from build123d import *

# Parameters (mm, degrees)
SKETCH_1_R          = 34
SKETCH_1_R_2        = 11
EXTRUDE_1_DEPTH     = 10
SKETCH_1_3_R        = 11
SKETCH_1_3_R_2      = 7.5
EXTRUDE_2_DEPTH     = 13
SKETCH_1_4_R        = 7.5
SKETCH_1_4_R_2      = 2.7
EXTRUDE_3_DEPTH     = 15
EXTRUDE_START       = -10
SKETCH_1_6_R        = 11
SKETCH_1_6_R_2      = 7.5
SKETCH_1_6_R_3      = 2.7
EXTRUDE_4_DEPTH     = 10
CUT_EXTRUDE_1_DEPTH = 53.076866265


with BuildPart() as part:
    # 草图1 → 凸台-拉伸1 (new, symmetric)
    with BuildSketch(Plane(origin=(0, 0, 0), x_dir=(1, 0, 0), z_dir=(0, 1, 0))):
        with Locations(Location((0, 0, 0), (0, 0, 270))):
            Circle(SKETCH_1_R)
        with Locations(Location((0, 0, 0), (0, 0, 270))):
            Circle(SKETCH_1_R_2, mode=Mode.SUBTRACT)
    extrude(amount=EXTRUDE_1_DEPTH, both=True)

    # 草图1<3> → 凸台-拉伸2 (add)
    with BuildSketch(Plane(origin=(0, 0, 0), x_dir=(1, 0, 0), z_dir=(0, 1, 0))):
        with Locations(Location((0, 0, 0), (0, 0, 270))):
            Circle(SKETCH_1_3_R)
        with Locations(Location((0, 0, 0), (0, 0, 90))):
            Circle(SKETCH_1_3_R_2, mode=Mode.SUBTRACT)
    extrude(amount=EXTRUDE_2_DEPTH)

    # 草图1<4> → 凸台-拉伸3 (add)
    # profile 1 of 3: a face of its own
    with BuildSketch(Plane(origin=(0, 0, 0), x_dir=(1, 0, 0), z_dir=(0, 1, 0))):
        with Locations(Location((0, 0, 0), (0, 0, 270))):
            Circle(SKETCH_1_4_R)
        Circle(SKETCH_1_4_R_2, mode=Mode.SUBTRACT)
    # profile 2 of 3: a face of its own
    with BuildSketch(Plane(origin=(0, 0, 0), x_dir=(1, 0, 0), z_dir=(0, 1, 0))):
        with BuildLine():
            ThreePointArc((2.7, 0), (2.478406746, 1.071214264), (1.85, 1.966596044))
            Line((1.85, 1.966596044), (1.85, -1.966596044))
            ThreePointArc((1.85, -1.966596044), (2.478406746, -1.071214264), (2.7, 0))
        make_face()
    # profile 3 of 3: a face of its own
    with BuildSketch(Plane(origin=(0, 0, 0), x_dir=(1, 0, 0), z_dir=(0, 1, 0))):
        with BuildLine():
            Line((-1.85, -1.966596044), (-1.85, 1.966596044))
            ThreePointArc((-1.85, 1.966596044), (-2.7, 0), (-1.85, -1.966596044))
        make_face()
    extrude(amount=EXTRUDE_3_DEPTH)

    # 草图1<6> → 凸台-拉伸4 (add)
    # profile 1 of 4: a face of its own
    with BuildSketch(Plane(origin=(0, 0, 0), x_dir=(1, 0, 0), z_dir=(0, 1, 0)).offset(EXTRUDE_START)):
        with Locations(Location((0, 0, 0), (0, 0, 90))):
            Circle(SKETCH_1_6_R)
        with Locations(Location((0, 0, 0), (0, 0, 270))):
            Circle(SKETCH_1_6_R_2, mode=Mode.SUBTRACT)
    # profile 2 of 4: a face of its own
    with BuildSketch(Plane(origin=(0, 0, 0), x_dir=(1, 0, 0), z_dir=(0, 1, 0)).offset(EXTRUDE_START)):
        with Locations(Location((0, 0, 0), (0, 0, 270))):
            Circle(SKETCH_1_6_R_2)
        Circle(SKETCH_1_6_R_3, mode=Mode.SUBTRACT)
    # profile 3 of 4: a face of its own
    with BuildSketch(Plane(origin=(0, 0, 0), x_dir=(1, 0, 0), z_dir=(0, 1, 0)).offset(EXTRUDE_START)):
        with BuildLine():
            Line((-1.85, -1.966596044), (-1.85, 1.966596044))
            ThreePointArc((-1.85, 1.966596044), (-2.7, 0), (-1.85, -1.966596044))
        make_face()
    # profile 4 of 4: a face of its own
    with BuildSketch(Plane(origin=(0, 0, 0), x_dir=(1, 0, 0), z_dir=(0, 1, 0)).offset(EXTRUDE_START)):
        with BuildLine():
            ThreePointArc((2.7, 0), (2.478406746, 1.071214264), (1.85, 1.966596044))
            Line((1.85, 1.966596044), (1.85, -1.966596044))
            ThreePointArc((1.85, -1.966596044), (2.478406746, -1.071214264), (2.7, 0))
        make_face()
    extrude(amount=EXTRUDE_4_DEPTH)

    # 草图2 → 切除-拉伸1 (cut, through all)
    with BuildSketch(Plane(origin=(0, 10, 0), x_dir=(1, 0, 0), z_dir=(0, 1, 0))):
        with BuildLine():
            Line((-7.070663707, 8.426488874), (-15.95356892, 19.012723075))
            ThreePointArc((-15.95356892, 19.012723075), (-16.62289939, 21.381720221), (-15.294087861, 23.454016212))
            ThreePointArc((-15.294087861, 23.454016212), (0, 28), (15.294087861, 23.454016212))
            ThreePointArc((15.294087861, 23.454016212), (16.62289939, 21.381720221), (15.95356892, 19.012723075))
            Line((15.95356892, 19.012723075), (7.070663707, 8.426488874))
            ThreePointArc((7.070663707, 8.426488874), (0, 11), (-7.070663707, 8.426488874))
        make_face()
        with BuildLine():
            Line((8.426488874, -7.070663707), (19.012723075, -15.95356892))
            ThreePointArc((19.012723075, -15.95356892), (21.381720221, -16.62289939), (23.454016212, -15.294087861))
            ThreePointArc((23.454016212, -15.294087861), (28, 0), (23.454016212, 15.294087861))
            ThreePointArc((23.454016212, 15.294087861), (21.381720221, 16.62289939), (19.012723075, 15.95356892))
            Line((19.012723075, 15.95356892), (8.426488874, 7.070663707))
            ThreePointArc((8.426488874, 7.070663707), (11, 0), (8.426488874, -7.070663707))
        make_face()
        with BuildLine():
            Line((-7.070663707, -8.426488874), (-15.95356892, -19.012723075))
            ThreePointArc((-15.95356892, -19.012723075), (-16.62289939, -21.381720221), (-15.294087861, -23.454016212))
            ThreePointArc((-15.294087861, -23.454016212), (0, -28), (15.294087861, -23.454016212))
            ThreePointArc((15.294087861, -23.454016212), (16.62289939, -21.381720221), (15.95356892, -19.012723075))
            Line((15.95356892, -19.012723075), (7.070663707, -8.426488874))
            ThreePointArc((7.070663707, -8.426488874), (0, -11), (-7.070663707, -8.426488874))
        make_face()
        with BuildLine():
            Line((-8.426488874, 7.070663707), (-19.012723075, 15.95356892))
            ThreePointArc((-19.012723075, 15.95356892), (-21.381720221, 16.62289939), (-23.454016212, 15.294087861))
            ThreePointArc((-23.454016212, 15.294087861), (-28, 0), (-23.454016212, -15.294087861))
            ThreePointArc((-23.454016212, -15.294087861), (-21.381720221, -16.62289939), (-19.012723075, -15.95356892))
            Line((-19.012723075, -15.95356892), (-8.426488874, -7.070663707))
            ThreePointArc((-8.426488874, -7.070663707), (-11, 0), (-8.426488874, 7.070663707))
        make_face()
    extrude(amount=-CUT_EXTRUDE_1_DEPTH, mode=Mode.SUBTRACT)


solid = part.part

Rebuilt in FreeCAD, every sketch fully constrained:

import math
import FreeCAD as App
import Part
import Sketcher
from FreeCAD import Vector
Q = App.Units.Quantity

doc = App.newDocument("Part")
body = doc.addObject("PartDesign::Body", "Body")

# Sketch on XZ plane
sketch1 = body.newObject("Sketcher::SketchObject", "Sketch")
sketch1.AttachmentSupport = (doc.getObject("XZ_Plane"), [""])
sketch1.MapMode = "FlatFace"
sketch1.addGeometry(Part.Circle(Vector(0, 0, 0), Vector(0, 0, 1), 34), False)
sketch1.addGeometry(Part.Circle(Vector(0, 0, 0), Vector(0, 0, 1), 11), False)
sketch1.addConstraint(Sketcher.Constraint("Coincident", 0, 3, -1, 1))
sketch1.addConstraint(Sketcher.Constraint("Coincident", 1, 3, -1, 1))
sketch1.addConstraint(Sketcher.Constraint("Diameter", 0, Q("68 mm")))
sketch1.addConstraint(Sketcher.Constraint("Diameter", 1, Q("22 mm")))
pad1 = body.newObject("PartDesign::Pad", "Pad")
pad1.Profile = sketch1
pad1.Length = 20
pad1.Midplane = True

# Sketch on XZ plane
sketch2 = body.newObject("Sketcher::SketchObject", "Sketch001")
sketch2.AttachmentSupport = (doc.getObject("XZ_Plane"), [""])
sketch2.MapMode = "FlatFace"
sketch2.addGeometry(Part.Circle(Vector(0, 0, 0), Vector(0, 0, 1), 11), False)
sketch2.addGeometry(Part.Circle(Vector(0, 0, 0), Vector(0, 0, 1), 8), False)
sketch2.addConstraint(Sketcher.Constraint("Coincident", 0, 3, -1, 1))
sketch2.addConstraint(Sketcher.Constraint("Coincident", 1, 3, -1, 1))
sketch2.addConstraint(Sketcher.Constraint("Diameter", 0, Q("22 mm")))
sketch2.addConstraint(Sketcher.Constraint("Diameter", 1, Q("15 mm")))
pad2 = body.newObject("PartDesign::Pad", "Pad001")
pad2.Profile = sketch2
pad2.Length = 13
pad2.Reversed = True

# Sketch on XZ plane
sketch3 = body.newObject("Sketcher::SketchObject", "Sketch002")
sketch3.AttachmentSupport = (doc.getObject("XZ_Plane"), [""])
sketch3.MapMode = "FlatFace"
sketch3.addGeometry(Part.Circle(Vector(0, 0, 0), Vector(0, 0, 1), 7.5), False)
sketch3.addGeometry(Part.ArcOfCircle(Part.Circle(Vector(0, 0, 0), Vector(0, 0, 1), 2.7), math.radians(-133), math.radians(-47)), False)
sketch3.addGeometry(Part.LineSegment(Vector(1.9, -2, 0), Vector(1.9, 2, 0)), False)
sketch3.addGeometry(Part.ArcOfCircle(Part.Circle(Vector(0, 0, 0), Vector(0, 0, 1), 2.7), math.radians(47), math.radians(133)), False)
sketch3.addGeometry(Part.LineSegment(Vector(-1.9, 2, 0), Vector(-1.9, -2, 0)), False)
sketch3.addConstraint(Sketcher.Constraint("Coincident", 1, 2, 2, 1))
sketch3.addConstraint(Sketcher.Constraint("Coincident", 2, 2, 3, 1))
sketch3.addConstraint(Sketcher.Constraint("Coincident", 3, 2, 4, 1))
sketch3.addConstraint(Sketcher.Constraint("Coincident", 4, 2, 1, 1))
sketch3.addConstraint(Sketcher.Constraint("Vertical", 2))
sketch3.addConstraint(Sketcher.Constraint("Vertical", 4))
sketch3.addConstraint(Sketcher.Constraint("Coincident", 0, 3, -1, 1))
sketch3.addConstraint(Sketcher.Constraint("Coincident", 1, 3, -1, 1))
sketch3.addConstraint(Sketcher.Constraint("Coincident", 3, 3, -1, 1))
sketch3.addConstraint(Sketcher.Constraint("Equal", 1, 3))
sketch3.addConstraint(Sketcher.Constraint("Horizontal", 2, 2, 3, 2))
sketch3.addConstraint(Sketcher.Constraint("Diameter", 0, Q("15 mm")))
sketch3.addConstraint(Sketcher.Constraint("Radius", 1, Q("2.7 mm")))
sketch3.addConstraint(Sketcher.Constraint("DistanceX", 3, 2, 2, 2, Q("3.7 mm")))
pad3 = body.newObject("PartDesign::Pad", "Pad002")
pad3.Profile = sketch3
pad3.Length = 15
pad3.Reversed = True

# Sketch on XZ plane
sketch4 = body.newObject("Sketcher::SketchObject", "Sketch003")
sketch4.AttachmentSupport = (doc.getObject("XZ_Plane"), [""])
sketch4.MapMode = "FlatFace"
sketch4.AttachmentOffset = App.Placement(Vector(0, 0, 10), App.Rotation())
sketch4.addGeometry(Part.Circle(Vector(0, 0, 0), Vector(0, 0, 1), 11), False)
sketch4.addGeometry(Part.ArcOfCircle(Part.Circle(Vector(0, 0, 0), Vector(0, 0, 1), 2.7), math.radians(-133), math.radians(-47)), False)
sketch4.addGeometry(Part.LineSegment(Vector(1.9, -2, 0), Vector(1.9, 2, 0)), False)
sketch4.addGeometry(Part.ArcOfCircle(Part.Circle(Vector(0, 0, 0), Vector(0, 0, 1), 2.7), math.radians(47), math.radians(133)), False)
sketch4.addGeometry(Part.LineSegment(Vector(-1.9, 2, 0), Vector(-1.9, -2, 0)), False)
sketch4.addConstraint(Sketcher.Constraint("Coincident", 1, 2, 2, 1))
sketch4.addConstraint(Sketcher.Constraint("Coincident", 2, 2, 3, 1))
sketch4.addConstraint(Sketcher.Constraint("Coincident", 3, 2, 4, 1))
sketch4.addConstraint(Sketcher.Constraint("Coincident", 4, 2, 1, 1))
sketch4.addConstraint(Sketcher.Constraint("Vertical", 2))
sketch4.addConstraint(Sketcher.Constraint("Vertical", 4))
sketch4.addConstraint(Sketcher.Constraint("Coincident", 0, 3, -1, 1))
sketch4.addConstraint(Sketcher.Constraint("Coincident", 1, 3, -1, 1))
sketch4.addConstraint(Sketcher.Constraint("Coincident", 3, 3, -1, 1))
sketch4.addConstraint(Sketcher.Constraint("Equal", 1, 3))
sketch4.addConstraint(Sketcher.Constraint("Horizontal", 2, 2, 3, 2))
sketch4.addConstraint(Sketcher.Constraint("Diameter", 0, Q("22 mm")))
sketch4.addConstraint(Sketcher.Constraint("Radius", 1, Q("2.7 mm")))
sketch4.addConstraint(Sketcher.Constraint("DistanceX", 3, 2, 2, 2, Q("3.7 mm")))
pad4 = body.newObject("PartDesign::Pad", "Pad003")
pad4.Profile = sketch4
pad4.Length = 10
pad4.Reversed = True

# Sketch on XZ plane
sketch5 = body.newObject("Sketcher::SketchObject", "Sketch004")
sketch5.AttachmentSupport = (doc.getObject("XZ_Plane"), [""])
sketch5.MapMode = "FlatFace"
sketch5.AttachmentOffset = App.Placement(Vector(0, 0, -10), App.Rotation())
sketch5.addGeometry(Part.LineSegment(Vector(-16, -19, 0), Vector(-7.1, -8.4, 0)), False)
sketch5.addGeometry(Part.ArcOfCircle(Part.Circle(Vector(0, 0, 0), Vector(0, 0, 1), 11), math.radians(-130), math.radians(-50)), False)
sketch5.addGeometry(Part.LineSegment(Vector(7.1, -8.4, 0), Vector(16, -19, 0)), False)
sketch5.addGeometry(Part.ArcOfCircle(Part.Circle(Vector(13.7, -20.9, 0), Vector(0, 0, 1), 3), math.radians(-57), math.radians(40)), False)
sketch5.addGeometry(Part.ArcOfCircle(Part.Circle(Vector(0, 0, 0), Vector(0, 0, 1), 28), math.radians(-123), math.radians(-57)), False)
sketch5.addGeometry(Part.ArcOfCircle(Part.Circle(Vector(-13.7, -20.9, 0), Vector(0, 0, 1), 3), math.radians(140), math.radians(237)), False)
sketch5.addGeometry(Part.LineSegment(Vector(8.4, 7.1, 0), Vector(19, 16, 0)), False)
sketch5.addGeometry(Part.ArcOfCircle(Part.Circle(Vector(20.9, 13.7, 0), Vector(0, 0, 1), 3), math.radians(33), math.radians(130)), False)
sketch5.addGeometry(Part.ArcOfCircle(Part.Circle(Vector(0, 0, 0), Vector(0, 0, 1), 28), math.radians(-33), math.radians(33)), False)
sketch5.addGeometry(Part.ArcOfCircle(Part.Circle(Vector(20.9, -13.7, 0), Vector(0, 0, 1), 3), math.radians(-130), math.radians(-33)), False)
sketch5.addGeometry(Part.LineSegment(Vector(19, -16, 0), Vector(8.4, -7.1, 0)), False)
sketch5.addGeometry(Part.ArcOfCircle(Part.Circle(Vector(0, 0, 0), Vector(0, 0, 1), 11), math.radians(-40), math.radians(40)), False)
sketch5.addGeometry(Part.LineSegment(Vector(-7.1, 8.4, 0), Vector(-16, 19, 0)), False)
sketch5.addGeometry(Part.ArcOfCircle(Part.Circle(Vector(-13.7, 20.9, 0), Vector(0, 0, 1), 3), math.radians(123), math.radians(220)), False)
sketch5.addGeometry(Part.ArcOfCircle(Part.Circle(Vector(0, 0, 0), Vector(0, 0, 1), 28), math.radians(57), math.radians(123)), False)
sketch5.addGeometry(Part.ArcOfCircle(Part.Circle(Vector(13.7, 20.9, 0), Vector(0, 0, 1), 3), math.radians(-40), math.radians(57)), False)
sketch5.addGeometry(Part.LineSegment(Vector(16, 19, 0), Vector(7.1, 8.4, 0)), False)
sketch5.addGeometry(Part.ArcOfCircle(Part.Circle(Vector(0, 0, 0), Vector(0, 0, 1), 11), math.radians(50), math.radians(130)), False)
sketch5.addGeometry(Part.LineSegment(Vector(-8.4, -7.1, 0), Vector(-19, -16, 0)), False)
sketch5.addGeometry(Part.ArcOfCircle(Part.Circle(Vector(-20.9, -13.7, 0), Vector(0, 0, 1), 3), math.radians(-147), math.radians(-50)), False)
sketch5.addGeometry(Part.ArcOfCircle(Part.Circle(Vector(0, 0, 0), Vector(0, 0, 1), 28), math.radians(147), math.radians(213)), False)
sketch5.addGeometry(Part.ArcOfCircle(Part.Circle(Vector(-20.9, 13.7, 0), Vector(0, 0, 1), 3), math.radians(50), math.radians(147)), False)
sketch5.addGeometry(Part.LineSegment(Vector(-19, 16, 0), Vector(-8.4, 7.1, 0)), False)
sketch5.addGeometry(Part.ArcOfCircle(Part.Circle(Vector(0, 0, 0), Vector(0, 0, 1), 11), math.radians(140), math.radians(220)), False)
sketch5.addConstraint(Sketcher.Constraint("Coincident", 0, 2, 1, 1))
sketch5.addConstraint(Sketcher.Constraint("Coincident", 1, 2, 2, 1))
sketch5.addConstraint(Sketcher.Constraint("Tangent", 2, 2, 3, 2))
sketch5.addConstraint(Sketcher.Constraint("Tangent", 3, 1, 4, 2))
sketch5.addConstraint(Sketcher.Constraint("Tangent", 4, 1, 5, 2))
sketch5.addConstraint(Sketcher.Constraint("Tangent", 5, 1, 0, 1))
sketch5.addConstraint(Sketcher.Constraint("Tangent", 6, 2, 7, 2))
sketch5.addConstraint(Sketcher.Constraint("Tangent", 7, 1, 8, 2))
sketch5.addConstraint(Sketcher.Constraint("Tangent", 8, 1, 9, 2))
sketch5.addConstraint(Sketcher.Constraint("Tangent", 9, 1, 10, 1))
sketch5.addConstraint(Sketcher.Constraint("Coincident", 10, 2, 11, 1))
sketch5.addConstraint(Sketcher.Constraint("Coincident", 11, 2, 6, 1))
sketch5.addConstraint(Sketcher.Constraint("Tangent", 12, 2, 13, 2))
sketch5.addConstraint(Sketcher.Constraint("Tangent", 13, 1, 14, 2))
sketch5.addConstraint(Sketcher.Constraint("Tangent", 14, 1, 15, 2))
sketch5.addConstraint(Sketcher.Constraint("Tangent", 15, 1, 16, 1))
sketch5.addConstraint(Sketcher.Constraint("Coincident", 16, 2, 17, 1))
sketch5.addConstraint(Sketcher.Constraint("Coincident", 17, 2, 12, 1))
sketch5.addConstraint(Sketcher.Constraint("Tangent", 18, 2, 19, 2))
sketch5.addConstraint(Sketcher.Constraint("Tangent", 19, 1, 20, 2))
sketch5.addConstraint(Sketcher.Constraint("Tangent", 20, 1, 21, 2))
sketch5.addConstraint(Sketcher.Constraint("Tangent", 21, 1, 22, 1))
sketch5.addConstraint(Sketcher.Constraint("Coincident", 22, 2, 23, 1))
sketch5.addConstraint(Sketcher.Constraint("Coincident", 23, 2, 18, 1))
sketch5.addConstraint(Sketcher.Constraint("Coincident", 1, 3, -1, 1))
sketch5.addConstraint(Sketcher.Constraint("Coincident", 4, 3, -1, 1))
sketch5.addConstraint(Sketcher.Constraint("Coincident", 8, 3, -1, 1))
sketch5.addConstraint(Sketcher.Constraint("Coincident", 11, 3, -1, 1))
sketch5.addConstraint(Sketcher.Constraint("Coincident", 14, 3, -1, 1))
sketch5.addConstraint(Sketcher.Constraint("Coincident", 17, 3, -1, 1))
sketch5.addConstraint(Sketcher.Constraint("Coincident", 20, 3, -1, 1))
sketch5.addConstraint(Sketcher.Constraint("Coincident", 23, 3, -1, 1))
sketch5.addConstraint(Sketcher.Constraint("Equal", 3, 5))
sketch5.addConstraint(Sketcher.Constraint("Equal", 5, 7))
sketch5.addConstraint(Sketcher.Constraint("Equal", 4, 8))
sketch5.addConstraint(Sketcher.Constraint("Equal", 7, 9))
sketch5.addConstraint(Sketcher.Constraint("Equal", 1, 11))
sketch5.addConstraint(Sketcher.Constraint("Equal", 9, 13))
sketch5.addConstraint(Sketcher.Constraint("Equal", 8, 14))
sketch5.addConstraint(Sketcher.Constraint("Equal", 13, 15))
sketch5.addConstraint(Sketcher.Constraint("Equal", 11, 17))
sketch5.addConstraint(Sketcher.Constraint("Equal", 15, 19))
sketch5.addConstraint(Sketcher.Constraint("Equal", 14, 20))
sketch5.addConstraint(Sketcher.Constraint("Equal", 19, 21))
sketch5.addConstraint(Sketcher.Constraint("Equal", 17, 23))
sketch5.addConstraint(Sketcher.Constraint("Symmetric", 2, 2, 12, 2, -1, 1))
sketch5.addConstraint(Sketcher.Constraint("Symmetric", 5, 1, 15, 1, -1, 1))
sketch5.addConstraint(Sketcher.Constraint("Symmetric", 6, 2, 18, 2, -1, 1))
sketch5.addConstraint(Sketcher.Constraint("Symmetric", 9, 1, 21, 1, -1, 1))
sketch5.addConstraint(Sketcher.Constraint("Symmetric", 2, 2, 5, 1, -2))
sketch5.addConstraint(Sketcher.Constraint("Symmetric", 9, 1, 18, 2, -2))
sketch5.addConstraint(Sketcher.Constraint("Perpendicular", 2, 6))
sketch5.addConstraint(Sketcher.Constraint("Equal", 2, 6))
sketch5.addConstraint(Sketcher.Constraint("Radius", 1, Q("11 mm")))
sketch5.addConstraint(Sketcher.Constraint("Radius", 3, Q("3 mm")))
sketch5.addConstraint(Sketcher.Constraint("Radius", 4, Q("28 mm")))
sketch5.addConstraint(Sketcher.Constraint("Angle", 0, Q("50 deg")))
sketch5.addConstraint(Sketcher.Constraint("DistanceX", 3, 1, 9, 3, Q("5.646998 mm")))
pocket1 = body.newObject("PartDesign::Pocket", "Pocket")
pocket1.Profile = sketch5
pocket1.Type = "ThroughAll"
pocket1.Reversed = True

doc.recompute()
